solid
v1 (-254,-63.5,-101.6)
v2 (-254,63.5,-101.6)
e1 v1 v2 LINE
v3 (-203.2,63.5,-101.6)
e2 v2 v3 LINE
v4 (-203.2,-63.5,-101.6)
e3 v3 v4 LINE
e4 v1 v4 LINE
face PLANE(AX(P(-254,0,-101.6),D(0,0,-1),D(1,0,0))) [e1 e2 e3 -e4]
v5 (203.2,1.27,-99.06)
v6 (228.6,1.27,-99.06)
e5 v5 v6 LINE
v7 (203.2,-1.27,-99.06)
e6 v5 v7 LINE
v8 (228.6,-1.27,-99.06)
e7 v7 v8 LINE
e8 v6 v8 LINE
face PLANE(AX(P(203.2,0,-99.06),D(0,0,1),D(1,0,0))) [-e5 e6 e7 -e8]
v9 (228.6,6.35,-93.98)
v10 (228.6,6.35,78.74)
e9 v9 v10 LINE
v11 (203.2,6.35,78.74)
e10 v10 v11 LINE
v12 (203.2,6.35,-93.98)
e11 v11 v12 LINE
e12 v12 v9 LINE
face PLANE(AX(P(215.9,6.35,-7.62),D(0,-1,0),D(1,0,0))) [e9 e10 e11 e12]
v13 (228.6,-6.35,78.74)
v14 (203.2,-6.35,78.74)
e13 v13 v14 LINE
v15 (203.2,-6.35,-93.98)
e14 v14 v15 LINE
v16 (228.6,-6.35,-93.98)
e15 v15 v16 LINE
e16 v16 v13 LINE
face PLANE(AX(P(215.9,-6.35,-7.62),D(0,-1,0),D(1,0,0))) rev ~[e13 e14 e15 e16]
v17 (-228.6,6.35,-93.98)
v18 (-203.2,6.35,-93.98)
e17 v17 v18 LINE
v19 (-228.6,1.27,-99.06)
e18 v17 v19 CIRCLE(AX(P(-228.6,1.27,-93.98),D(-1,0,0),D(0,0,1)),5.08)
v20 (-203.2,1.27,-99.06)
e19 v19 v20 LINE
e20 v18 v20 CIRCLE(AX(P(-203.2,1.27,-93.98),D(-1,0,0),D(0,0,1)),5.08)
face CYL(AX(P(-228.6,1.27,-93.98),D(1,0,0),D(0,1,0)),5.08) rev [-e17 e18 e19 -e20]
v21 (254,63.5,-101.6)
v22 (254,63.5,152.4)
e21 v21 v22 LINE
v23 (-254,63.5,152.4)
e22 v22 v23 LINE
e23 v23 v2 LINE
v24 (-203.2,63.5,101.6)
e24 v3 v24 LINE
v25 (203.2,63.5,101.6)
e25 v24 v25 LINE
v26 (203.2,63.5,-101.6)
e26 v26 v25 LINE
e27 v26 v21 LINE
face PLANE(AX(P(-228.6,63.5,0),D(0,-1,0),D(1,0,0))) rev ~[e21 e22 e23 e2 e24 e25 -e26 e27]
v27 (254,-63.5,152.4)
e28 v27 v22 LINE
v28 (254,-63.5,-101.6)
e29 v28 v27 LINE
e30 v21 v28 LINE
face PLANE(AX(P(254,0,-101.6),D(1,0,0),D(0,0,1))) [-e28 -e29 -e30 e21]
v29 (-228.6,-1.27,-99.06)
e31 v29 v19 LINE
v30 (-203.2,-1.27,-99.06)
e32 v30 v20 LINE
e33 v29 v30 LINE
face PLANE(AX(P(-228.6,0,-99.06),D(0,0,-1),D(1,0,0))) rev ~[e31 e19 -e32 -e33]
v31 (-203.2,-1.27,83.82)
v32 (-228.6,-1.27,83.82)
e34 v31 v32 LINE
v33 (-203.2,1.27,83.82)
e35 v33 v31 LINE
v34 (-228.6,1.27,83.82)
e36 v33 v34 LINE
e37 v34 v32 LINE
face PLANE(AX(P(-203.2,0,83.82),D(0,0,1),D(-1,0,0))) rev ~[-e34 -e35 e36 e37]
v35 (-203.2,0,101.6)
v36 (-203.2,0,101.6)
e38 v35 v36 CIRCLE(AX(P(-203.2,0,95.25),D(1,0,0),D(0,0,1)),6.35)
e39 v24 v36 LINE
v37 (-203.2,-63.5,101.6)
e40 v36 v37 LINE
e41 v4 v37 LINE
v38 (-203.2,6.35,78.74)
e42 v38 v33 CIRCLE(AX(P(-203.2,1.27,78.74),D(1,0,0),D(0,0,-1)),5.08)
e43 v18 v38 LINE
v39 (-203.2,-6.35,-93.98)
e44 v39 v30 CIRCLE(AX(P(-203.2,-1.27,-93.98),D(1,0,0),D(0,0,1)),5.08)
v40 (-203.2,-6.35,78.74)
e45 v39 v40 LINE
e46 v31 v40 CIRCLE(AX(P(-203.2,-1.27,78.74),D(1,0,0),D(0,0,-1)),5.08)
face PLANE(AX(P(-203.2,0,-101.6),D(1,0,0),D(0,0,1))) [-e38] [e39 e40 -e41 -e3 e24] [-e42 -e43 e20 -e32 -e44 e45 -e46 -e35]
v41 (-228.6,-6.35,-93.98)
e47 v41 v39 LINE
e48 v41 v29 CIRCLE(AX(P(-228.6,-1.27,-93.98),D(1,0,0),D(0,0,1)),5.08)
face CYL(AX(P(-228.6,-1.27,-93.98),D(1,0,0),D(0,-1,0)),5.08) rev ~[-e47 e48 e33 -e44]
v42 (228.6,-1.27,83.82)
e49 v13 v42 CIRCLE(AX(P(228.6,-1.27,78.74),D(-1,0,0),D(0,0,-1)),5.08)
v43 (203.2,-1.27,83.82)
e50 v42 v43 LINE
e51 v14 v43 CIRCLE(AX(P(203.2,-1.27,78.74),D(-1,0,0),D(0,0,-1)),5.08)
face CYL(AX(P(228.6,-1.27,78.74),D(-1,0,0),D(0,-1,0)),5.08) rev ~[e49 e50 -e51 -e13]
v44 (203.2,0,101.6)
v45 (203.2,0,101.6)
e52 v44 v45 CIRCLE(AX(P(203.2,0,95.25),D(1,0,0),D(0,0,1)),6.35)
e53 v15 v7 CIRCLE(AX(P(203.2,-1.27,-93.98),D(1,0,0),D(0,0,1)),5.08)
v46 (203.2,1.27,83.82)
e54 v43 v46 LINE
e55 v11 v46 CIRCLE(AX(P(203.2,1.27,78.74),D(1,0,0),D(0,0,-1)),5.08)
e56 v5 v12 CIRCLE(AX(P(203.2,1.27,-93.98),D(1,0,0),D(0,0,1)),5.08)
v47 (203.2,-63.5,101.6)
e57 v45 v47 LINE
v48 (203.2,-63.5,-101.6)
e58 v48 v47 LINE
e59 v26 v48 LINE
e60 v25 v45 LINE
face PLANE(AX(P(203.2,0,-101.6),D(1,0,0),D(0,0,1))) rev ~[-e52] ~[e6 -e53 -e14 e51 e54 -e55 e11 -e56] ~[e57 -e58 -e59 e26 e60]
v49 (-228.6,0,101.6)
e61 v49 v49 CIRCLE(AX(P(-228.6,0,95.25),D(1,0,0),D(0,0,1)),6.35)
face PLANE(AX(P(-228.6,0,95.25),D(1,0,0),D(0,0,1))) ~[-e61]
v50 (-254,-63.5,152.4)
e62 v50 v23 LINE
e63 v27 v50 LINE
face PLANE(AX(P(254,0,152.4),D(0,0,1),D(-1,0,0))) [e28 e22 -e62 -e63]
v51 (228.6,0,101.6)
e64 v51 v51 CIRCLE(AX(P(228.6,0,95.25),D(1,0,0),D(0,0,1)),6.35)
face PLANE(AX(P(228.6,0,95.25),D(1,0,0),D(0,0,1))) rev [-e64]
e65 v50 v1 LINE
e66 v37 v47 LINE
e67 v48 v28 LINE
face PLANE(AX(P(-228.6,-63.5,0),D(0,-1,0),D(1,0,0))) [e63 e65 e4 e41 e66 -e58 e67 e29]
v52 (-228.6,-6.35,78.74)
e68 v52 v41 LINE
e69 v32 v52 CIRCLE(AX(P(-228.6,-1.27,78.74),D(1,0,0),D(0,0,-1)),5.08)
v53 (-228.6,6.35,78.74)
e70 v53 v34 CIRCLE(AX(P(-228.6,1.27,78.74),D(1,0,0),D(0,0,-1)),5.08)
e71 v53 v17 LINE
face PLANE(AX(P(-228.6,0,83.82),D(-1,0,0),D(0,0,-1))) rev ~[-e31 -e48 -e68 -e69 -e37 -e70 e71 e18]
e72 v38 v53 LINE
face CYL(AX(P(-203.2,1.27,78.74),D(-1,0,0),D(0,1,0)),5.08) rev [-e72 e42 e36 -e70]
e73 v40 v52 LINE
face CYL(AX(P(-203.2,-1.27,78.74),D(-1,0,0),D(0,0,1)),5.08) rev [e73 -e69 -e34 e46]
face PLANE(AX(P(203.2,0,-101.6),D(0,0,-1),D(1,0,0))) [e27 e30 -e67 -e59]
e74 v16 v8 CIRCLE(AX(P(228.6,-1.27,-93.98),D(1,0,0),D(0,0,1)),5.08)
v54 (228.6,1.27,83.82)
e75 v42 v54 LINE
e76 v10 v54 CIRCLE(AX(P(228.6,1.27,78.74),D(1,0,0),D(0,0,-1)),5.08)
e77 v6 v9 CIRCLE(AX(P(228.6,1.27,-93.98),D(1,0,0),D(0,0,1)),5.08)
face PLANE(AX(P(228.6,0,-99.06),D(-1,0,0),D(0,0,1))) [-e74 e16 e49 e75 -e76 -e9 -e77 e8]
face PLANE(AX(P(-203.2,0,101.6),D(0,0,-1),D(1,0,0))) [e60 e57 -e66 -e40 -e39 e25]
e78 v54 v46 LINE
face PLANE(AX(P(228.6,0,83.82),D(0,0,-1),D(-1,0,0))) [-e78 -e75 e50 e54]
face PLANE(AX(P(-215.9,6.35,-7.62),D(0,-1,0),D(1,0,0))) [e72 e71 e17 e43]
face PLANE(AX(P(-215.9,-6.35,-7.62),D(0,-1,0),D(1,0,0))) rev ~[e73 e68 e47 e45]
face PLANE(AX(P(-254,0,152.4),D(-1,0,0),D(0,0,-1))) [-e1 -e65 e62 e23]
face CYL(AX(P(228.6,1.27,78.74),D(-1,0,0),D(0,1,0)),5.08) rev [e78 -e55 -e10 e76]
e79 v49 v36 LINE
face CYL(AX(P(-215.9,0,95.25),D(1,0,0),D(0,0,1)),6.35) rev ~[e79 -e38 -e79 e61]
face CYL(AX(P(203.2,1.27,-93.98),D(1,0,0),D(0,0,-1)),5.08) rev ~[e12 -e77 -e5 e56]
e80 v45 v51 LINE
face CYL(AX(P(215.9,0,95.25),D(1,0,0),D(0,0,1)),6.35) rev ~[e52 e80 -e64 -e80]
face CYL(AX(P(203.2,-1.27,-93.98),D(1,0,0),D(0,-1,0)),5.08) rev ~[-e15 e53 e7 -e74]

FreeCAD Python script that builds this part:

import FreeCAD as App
import Part
import Sketcher

V = App.Vector
Q = App.Units.Quantity


def edges_at(feature, points):
    """Names of the edges that pass closest to the given points."""
    edges = feature.Shape.Edges
    near = lambda p: min(range(len(edges)), key=lambda i: edges[i].distToShape(Part.Vertex(*p))[0])
    return sorted({f"Edge{near(p) + 1}" for p in points})

doc = App.newDocument("Part")
body = doc.addObject("PartDesign::Body", "Body")

# Sketch on XZ plane
sketch1 = body.newObject("Sketcher::SketchObject", "Sketch")
sketch1.AttachmentSupport = (doc.getObject("XZ_Plane"), [""])
sketch1.MapMode = "FlatFace"
sketch1.addGeometry(Part.LineSegment(V(-254, -101.6, 0), V(-203.2, -101.6, 0)), False)
sketch1.addGeometry(Part.LineSegment(V(-203.2, -101.6, 0), V(-203.2, 101.6, 0)), False)
sketch1.addGeometry(Part.LineSegment(V(-203.2, 101.6, 0), V(203.2, 101.6, 0)), False)
sketch1.addGeometry(Part.LineSegment(V(203.2, 101.6, 0), V(203.2, -101.6, 0)), False)
sketch1.addGeometry(Part.LineSegment(V(203.2, -101.6, 0), V(254, -101.6, 0)), False)
sketch1.addGeometry(Part.LineSegment(V(254, -101.6, 0), V(254, 152.4, 0)), False)
sketch1.addGeometry(Part.LineSegment(V(254, 152.4, 0), V(-254, 152.4, 0)), False)
sketch1.addGeometry(Part.LineSegment(V(-254, 152.4, 0), V(-254, -101.6, 0)), False)
sketch1.addConstraint(Sketcher.Constraint("Coincident", 0, 2, 1, 1))
sketch1.addConstraint(Sketcher.Constraint("Coincident", 1, 2, 2, 1))
sketch1.addConstraint(Sketcher.Constraint("Coincident", 2, 2, 3, 1))
sketch1.addConstraint(Sketcher.Constraint("Coincident", 3, 2, 4, 1))
sketch1.addConstraint(Sketcher.Constraint("Coincident", 4, 2, 5, 1))
sketch1.addConstraint(Sketcher.Constraint("Coincident", 5, 2, 6, 1))
sketch1.addConstraint(Sketcher.Constraint("Coincident", 6, 2, 7, 1))
sketch1.addConstraint(Sketcher.Constraint("Coincident", 7, 2, 0, 1))
sketch1.addConstraint(Sketcher.Constraint("Horizontal", 0))
sketch1.addConstraint(Sketcher.Constraint("Vertical", 1))
sketch1.addConstraint(Sketcher.Constraint("Horizontal", 2))
sketch1.addConstraint(Sketcher.Constraint("Vertical", 3))
sketch1.addConstraint(Sketcher.Constraint("Horizontal", 4))
sketch1.addConstraint(Sketcher.Constraint("Vertical", 5))
sketch1.addConstraint(Sketcher.Constraint("Horizontal", 6))
sketch1.addConstraint(Sketcher.Constraint("Vertical", 7))
sketch1.addConstraint(Sketcher.Constraint("Symmetric", 0, 2, 2, 2, -1, 1))
sketch1.addConstraint(Sketcher.Constraint("Symmetric", 4, 2, 7, 2, -2))
sketch1.addConstraint(Sketcher.Constraint("DistanceX", 0, 1, 0, 2, Q("2 in")))
sketch1.addConstraint(Sketcher.Constraint("DistanceX", 2, 1, 2, 2, Q("16 in")))
sketch1.addConstraint(Sketcher.Constraint("DistanceY", 1, 1, 1, 2, Q("8 in")))
sketch1.addConstraint(Sketcher.Constraint("DistanceY", 5, 1, 5, 2, Q("10 in")))
pad1 = body.newObject("PartDesign::Pad", "Pad")
pad1.Profile = sketch1
pad1.Length = Q("5 in")
pad1.Midplane = True

# Sketch on XZ plane
sketch2 = body.newObject("Sketcher::SketchObject", "Sketch001")
sketch2.AttachmentSupport = (doc.getObject("XZ_Plane"), [""])
sketch2.MapMode = "FlatFace"
sketch2.addGeometry(Part.LineSegment(V(203.2, 101.6, 0), V(203.2, 95.25, 0)), False)
sketch2.addGeometry(Part.LineSegment(V(203.2, 95.25, 0), V(228.6, 95.25, 0)), False)
sketch2.addGeometry(Part.LineSegment(V(228.6, 95.25, 0), V(228.6, 101.6, 0)), False)
sketch2.addGeometry(Part.LineSegment(V(228.6, 101.6, 0), V(203.2, 101.6, 0)), False)
sketch2.addGeometry(Part.LineSegment(V(-228.6, 101.6, 0), V(-228.6, 95.25, 0)), False)
sketch2.addGeometry(Part.LineSegment(V(-228.6, 95.25, 0), V(-203.2, 95.25, 0)), False)
sketch2.addGeometry(Part.LineSegment(V(-203.2, 95.25, 0), V(-203.2, 101.6, 0)), False)
sketch2.addGeometry(Part.LineSegment(V(-203.2, 101.6, 0), V(-228.6, 101.6, 0)), False)
sketch2.addGeometry(Part.LineSegment(V(-228.6, 95.25, 0), V(228.6, 95.25, 0)), True)  # axis
sketch2.addConstraint(Sketcher.Constraint("Coincident", 0, 2, 1, 1))
sketch2.addConstraint(Sketcher.Constraint("Coincident", 1, 2, 2, 1))
sketch2.addConstraint(Sketcher.Constraint("Coincident", 2, 2, 3, 1))
sketch2.addConstraint(Sketcher.Constraint("Coincident", 3, 2, 0, 1))
sketch2.addConstraint(Sketcher.Constraint("Coincident", 4, 2, 5, 1))
sketch2.addConstraint(Sketcher.Constraint("Coincident", 5, 2, 6, 1))
sketch2.addConstraint(Sketcher.Constraint("Coincident", 6, 2, 7, 1))
sketch2.addConstraint(Sketcher.Constraint("Coincident", 7, 2, 4, 1))
sketch2.addConstraint(Sketcher.Constraint("Vertical", 0))
sketch2.addConstraint(Sketcher.Constraint("Horizontal", 1))
sketch2.addConstraint(Sketcher.Constraint("Vertical", 2))
sketch2.addConstraint(Sketcher.Constraint("Horizontal", 3))
sketch2.addConstraint(Sketcher.Constraint("Vertical", 4))
sketch2.addConstraint(Sketcher.Constraint("Horizontal", 5))
sketch2.addConstraint(Sketcher.Constraint("Vertical", 6))
sketch2.addConstraint(Sketcher.Constraint("Horizontal", 7))
sketch2.addConstraint(Sketcher.Constraint("Horizontal", 8))
sketch2.addConstraint(Sketcher.Constraint("Coincident", 8, 1, 4, 2))
sketch2.addConstraint(Sketcher.Constraint("Coincident", 8, 2, 1, 2))
sketch2.addConstraint(Sketcher.Constraint("Symmetric", 3, 2, 6, 2, -2))
sketch2.addConstraint(Sketcher.Constraint("Equal", 3, 5))
sketch2.addConstraint(Sketcher.Constraint("DistanceX", 1, 1, 1, 2, Q("1 in")))
sketch2.addConstraint(Sketcher.Constraint("DistanceX", 8, 1, 8, 2, Q("18 in")))
sketch2.addConstraint(Sketcher.Constraint("DistanceY", -1, 1, 2, 2, Q("4 in")))
sketch2.addConstraint(Sketcher.Constraint("DistanceY", 0, 2, 0, 1, Q("0.25 in")))
groove = body.newObject("PartDesign::Groove", "Groove")
groove.Profile = sketch2
groove.ReferenceAxis = (sketch2, ["Axis0"])
groove.Angle = 360

# Sketch on XZ plane
sketch3 = body.newObject("Sketcher::SketchObject", "Sketch002")
sketch3.AttachmentSupport = (doc.getObject("XZ_Plane"), [""])
sketch3.MapMode = "FlatFace"
sketch3.addGeometry(Part.LineSegment(V(203.2, 83.82, 0), V(203.2, -99.06, 0)), False)
sketch3.addGeometry(Part.LineSegment(V(203.2, -99.06, 0), V(228.6, -99.06, 0)), False)
sketch3.addGeometry(Part.LineSegment(V(228.6, -99.06, 0), V(228.6, 83.82, 0)), False)
sketch3.addGeometry(Part.LineSegment(V(228.6, 83.82, 0), V(203.2, 83.82, 0)), False)
sketch3.addGeometry(Part.LineSegment(V(-203.2, -99.06, 0), V(-203.2, 83.82, 0)), False)
sketch3.addGeometry(Part.LineSegment(V(-203.2, 83.82, 0), V(-228.6, 83.82, 0)), False)
sketch3.addGeometry(Part.LineSegment(V(-228.6, 83.82, 0), V(-228.6, -99.06, 0)), False)
sketch3.addGeometry(Part.LineSegment(V(-228.6, -99.06, 0), V(-203.2, -99.06, 0)), False)
sketch3.addConstraint(Sketcher.Constraint("Coincident", 0, 2, 1, 1))
sketch3.addConstraint(Sketcher.Constraint("Coincident", 1, 2, 2, 1))
sketch3.addConstraint(Sketcher.Constraint("Coincident", 2, 2, 3, 1))
sketch3.addConstraint(Sketcher.Constraint("Coincident", 3, 2, 0, 1))
sketch3.addConstraint(Sketcher.Constraint("Coincident", 4, 2, 5, 1))
sketch3.addConstraint(Sketcher.Constraint("Coincident", 5, 2, 6, 1))
sketch3.addConstraint(Sketcher.Constraint("Coincident", 6, 2, 7, 1))
sketch3.addConstraint(Sketcher.Constraint("Coincident", 7, 2, 4, 1))
sketch3.addConstraint(Sketcher.Constraint("Vertical", 0))
sketch3.addConstraint(Sketcher.Constraint("Horizontal", 1))
sketch3.addConstraint(Sketcher.Constraint("Vertical", 2))
sketch3.addConstraint(Sketcher.Constraint("Horizontal", 3))
sketch3.addConstraint(Sketcher.Constraint("Vertical", 4))
sketch3.addConstraint(Sketcher.Constraint("Horizontal", 5))
sketch3.addConstraint(Sketcher.Constraint("Vertical", 6))
sketch3.addConstraint(Sketcher.Constraint("Horizontal", 7))
sketch3.addConstraint(Sketcher.Constraint("Symmetric", 3, 2, 4, 2, -2))
sketch3.addConstraint(Sketcher.Constraint("Symmetric", 1, 2, 6, 2, -2))
sketch3.addConstraint(Sketcher.Constraint("DistanceX", 1, 1, 1, 2, Q("1 in")))
sketch3.addConstraint(Sketcher.Constraint("DistanceY", 0, 2, 0, 1, Q("7.2 in")))
sketch3.addConstraint(Sketcher.Constraint("DistanceX", -1, 1, 0, 2, Q("8 in")))
sketch3.addConstraint(Sketcher.Constraint("DistanceY", 0, 2, -1, 1, Q("3.9 in")))
pocket1 = body.newObject("PartDesign::Pocket", "Pocket")
pocket1.Profile = sketch3
pocket1.Length = Q("0.5 in")
pocket1.Midplane = True
doc.recompute()

fillet = body.newObject("PartDesign::Fillet", "Fillet")
fillet.Base = (pocket1, edges_at(pocket1, [
    (-215.9, -6.35, 83.82),
    (-215.9, 6.35, 83.82),
    (-215.9, 6.35, -99.06),
    (-215.9, -6.35, -99.06),
    (215.9, -6.35, 83.82),
    (215.9, 6.35, 83.82),
    (215.9, -6.35, -99.06),
    (215.9, 6.35, -99.06),
]))
fillet.Radius = Q("0.2 in")

doc.recompute()
